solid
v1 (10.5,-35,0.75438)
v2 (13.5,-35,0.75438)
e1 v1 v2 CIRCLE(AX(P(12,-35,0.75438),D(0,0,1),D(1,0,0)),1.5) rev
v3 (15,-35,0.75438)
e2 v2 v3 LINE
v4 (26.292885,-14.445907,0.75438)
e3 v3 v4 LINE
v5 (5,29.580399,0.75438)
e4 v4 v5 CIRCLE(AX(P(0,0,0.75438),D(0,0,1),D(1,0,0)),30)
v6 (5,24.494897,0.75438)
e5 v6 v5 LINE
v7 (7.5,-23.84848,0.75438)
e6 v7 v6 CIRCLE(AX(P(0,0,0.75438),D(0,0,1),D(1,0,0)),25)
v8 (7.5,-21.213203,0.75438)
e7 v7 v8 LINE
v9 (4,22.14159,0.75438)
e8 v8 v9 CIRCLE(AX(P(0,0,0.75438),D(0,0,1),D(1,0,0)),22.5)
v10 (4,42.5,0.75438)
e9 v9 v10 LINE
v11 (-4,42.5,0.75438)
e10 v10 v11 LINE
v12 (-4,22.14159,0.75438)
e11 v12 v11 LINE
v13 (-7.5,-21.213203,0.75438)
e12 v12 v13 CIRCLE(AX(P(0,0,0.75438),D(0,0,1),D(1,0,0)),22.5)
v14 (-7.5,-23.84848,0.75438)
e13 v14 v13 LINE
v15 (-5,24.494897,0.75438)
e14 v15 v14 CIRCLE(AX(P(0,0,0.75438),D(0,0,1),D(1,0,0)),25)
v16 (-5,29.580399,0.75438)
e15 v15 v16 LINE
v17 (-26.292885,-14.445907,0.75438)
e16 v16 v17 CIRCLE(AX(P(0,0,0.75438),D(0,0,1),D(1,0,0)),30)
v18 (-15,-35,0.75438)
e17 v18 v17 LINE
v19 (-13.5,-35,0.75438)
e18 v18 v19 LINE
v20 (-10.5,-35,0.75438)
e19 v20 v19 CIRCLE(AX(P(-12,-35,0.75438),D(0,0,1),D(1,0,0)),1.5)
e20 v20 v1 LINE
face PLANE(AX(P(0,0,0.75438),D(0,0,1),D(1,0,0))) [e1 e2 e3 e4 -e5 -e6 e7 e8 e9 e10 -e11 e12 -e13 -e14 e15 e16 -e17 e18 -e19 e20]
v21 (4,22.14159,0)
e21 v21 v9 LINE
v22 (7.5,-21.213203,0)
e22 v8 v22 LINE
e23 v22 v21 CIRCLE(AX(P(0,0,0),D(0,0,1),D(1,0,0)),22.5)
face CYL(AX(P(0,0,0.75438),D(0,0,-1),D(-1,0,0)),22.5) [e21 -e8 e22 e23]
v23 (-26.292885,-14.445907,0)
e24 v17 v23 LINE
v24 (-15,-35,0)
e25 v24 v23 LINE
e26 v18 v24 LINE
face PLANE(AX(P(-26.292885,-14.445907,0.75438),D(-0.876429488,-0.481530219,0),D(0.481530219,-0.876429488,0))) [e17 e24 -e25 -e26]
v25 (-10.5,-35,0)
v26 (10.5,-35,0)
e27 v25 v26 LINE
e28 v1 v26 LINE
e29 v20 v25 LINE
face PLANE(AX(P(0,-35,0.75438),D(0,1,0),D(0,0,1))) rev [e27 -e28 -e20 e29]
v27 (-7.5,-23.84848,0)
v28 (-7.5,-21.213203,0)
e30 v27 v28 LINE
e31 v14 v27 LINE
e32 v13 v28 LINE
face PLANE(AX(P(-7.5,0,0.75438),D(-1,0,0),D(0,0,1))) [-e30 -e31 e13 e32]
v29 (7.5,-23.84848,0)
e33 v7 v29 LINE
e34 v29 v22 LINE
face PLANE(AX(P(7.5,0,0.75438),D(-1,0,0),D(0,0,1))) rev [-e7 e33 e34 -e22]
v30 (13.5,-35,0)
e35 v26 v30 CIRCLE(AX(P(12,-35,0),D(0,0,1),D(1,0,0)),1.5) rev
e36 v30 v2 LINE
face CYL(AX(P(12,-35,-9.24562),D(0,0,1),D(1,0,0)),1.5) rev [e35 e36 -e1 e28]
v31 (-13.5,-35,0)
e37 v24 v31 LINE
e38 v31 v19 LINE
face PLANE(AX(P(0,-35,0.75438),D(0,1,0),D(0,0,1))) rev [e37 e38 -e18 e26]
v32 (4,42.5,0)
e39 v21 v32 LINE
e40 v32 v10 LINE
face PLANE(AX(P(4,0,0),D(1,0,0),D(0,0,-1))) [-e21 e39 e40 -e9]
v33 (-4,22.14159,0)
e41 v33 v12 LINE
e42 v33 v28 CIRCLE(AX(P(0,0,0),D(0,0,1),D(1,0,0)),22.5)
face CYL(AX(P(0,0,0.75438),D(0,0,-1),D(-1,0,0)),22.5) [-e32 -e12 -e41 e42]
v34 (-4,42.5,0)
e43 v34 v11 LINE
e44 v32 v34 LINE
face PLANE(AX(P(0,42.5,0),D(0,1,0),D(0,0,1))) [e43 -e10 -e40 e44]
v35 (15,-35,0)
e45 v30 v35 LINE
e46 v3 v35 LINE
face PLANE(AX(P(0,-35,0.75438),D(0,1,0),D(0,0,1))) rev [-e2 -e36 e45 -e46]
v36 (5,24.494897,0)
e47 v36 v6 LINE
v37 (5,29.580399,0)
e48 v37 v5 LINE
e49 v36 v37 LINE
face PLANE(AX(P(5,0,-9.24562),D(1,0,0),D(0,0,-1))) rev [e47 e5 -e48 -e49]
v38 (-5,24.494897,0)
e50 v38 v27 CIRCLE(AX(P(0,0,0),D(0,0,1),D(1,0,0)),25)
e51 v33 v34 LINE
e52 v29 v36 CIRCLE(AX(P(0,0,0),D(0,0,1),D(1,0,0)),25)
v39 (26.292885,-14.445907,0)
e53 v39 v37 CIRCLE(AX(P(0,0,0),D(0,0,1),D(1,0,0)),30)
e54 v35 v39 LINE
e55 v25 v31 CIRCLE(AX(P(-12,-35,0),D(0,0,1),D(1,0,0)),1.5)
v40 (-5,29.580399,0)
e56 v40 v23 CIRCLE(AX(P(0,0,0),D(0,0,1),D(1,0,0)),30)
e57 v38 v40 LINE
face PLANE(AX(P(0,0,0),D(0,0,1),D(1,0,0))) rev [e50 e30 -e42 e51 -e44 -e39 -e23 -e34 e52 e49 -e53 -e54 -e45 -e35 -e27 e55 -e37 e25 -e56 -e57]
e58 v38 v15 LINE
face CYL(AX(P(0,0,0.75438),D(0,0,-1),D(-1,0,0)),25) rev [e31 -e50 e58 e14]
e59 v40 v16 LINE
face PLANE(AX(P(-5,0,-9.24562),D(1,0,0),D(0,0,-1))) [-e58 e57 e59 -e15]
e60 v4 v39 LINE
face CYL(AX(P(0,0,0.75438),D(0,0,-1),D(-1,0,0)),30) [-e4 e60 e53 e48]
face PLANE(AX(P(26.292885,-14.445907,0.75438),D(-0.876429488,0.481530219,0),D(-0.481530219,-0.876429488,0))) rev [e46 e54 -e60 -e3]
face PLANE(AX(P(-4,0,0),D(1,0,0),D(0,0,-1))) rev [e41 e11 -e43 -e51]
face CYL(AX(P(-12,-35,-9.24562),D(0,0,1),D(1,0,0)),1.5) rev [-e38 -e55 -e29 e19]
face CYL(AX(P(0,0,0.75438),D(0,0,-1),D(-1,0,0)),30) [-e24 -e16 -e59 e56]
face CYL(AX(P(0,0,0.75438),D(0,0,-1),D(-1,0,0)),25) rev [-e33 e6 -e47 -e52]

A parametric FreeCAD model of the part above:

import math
import FreeCAD as App
import Part
import Sketcher
Q = App.Units.Quantity

doc = App.newDocument("Part")
body = doc.addObject("PartDesign::Body", "Body")

sketch1 = body.newObject("Sketcher::SketchObject", "Sketch")
sketch1.AttachmentSupport = (doc.getObject("XY_Plane"), [""])
sketch1.MapMode = "FlatFace"
sketch1.addGeometry([
    Part.LineSegment(App.Vector(-15, -35, 0), App.Vector(15, -35, 0)),
    Part.LineSegment(App.Vector(15, -35, 0), App.Vector(26.292885, -14.445907, 0)),
    Part.ArcOfCircle(Part.Circle(App.Vector(0, 0, 0), App.Vector(0, 0, 1), 30), math.radians(-28.785391), math.radians(208.785391)),
    Part.LineSegment(App.Vector(-26.292885, -14.445907, 0), App.Vector(-15, -35, 0)),
    Part.LineSegment(App.Vector(-7.5, -21.213203, 0), App.Vector(-7.5, -23.84848, 0)),
    Part.ArcOfCircle(Part.Circle(App.Vector(0, 0, 0), App.Vector(0, 0, 1), 25), math.radians(-72.542397), math.radians(252.542397)),
    Part.LineSegment(App.Vector(7.5, -23.84848, 0), App.Vector(7.5, -21.213203, 0)),
    Part.ArcOfCircle(Part.Circle(App.Vector(0, 0, 0), App.Vector(0, 0, 1), 22.5), math.radians(-70.528779), math.radians(250.528779)),
], False)
sketch1.addConstraint([
    Sketcher.Constraint("Coincident", 0, 2, 1, 1),
    Sketcher.Constraint("Tangent", 1, 2, 2, 1),
    Sketcher.Constraint("Tangent", 2, 2, 3, 1),
    Sketcher.Constraint("Coincident", 3, 2, 0, 1),
    Sketcher.Constraint("Coincident", 4, 2, 5, 2),
    Sketcher.Constraint("Coincident", 5, 1, 6, 1),
    Sketcher.Constraint("Coincident", 6, 2, 7, 1),
    Sketcher.Constraint("Coincident", 7, 2, 4, 1),
    Sketcher.Constraint("Horizontal", 0),
    Sketcher.Constraint("Vertical", 4),
    Sketcher.Constraint("Vertical", 6),
    Sketcher.Constraint("Coincident", 2, 3, -1, 1),
    Sketcher.Constraint("Coincident", 5, 3, -1, 1),
    Sketcher.Constraint("Coincident", 7, 3, -1, 1),
    Sketcher.Constraint("Horizontal", 1, 2, 2, 2),
    Sketcher.Constraint("Horizontal", 4, 2, 5, 1),
    Sketcher.Constraint("Radius", 2, Q("30 mm")),
    Sketcher.Constraint("Radius", 5, Q("25 mm")),
    Sketcher.Constraint("Radius", 7, Q("22.5 mm")),
    Sketcher.Constraint("DistanceX", 0, 1, 0, 2, Q("30 mm")),
    Sketcher.Constraint("DistanceY", 0, 2, -1, 1, Q("35 mm")),
    Sketcher.Constraint("DistanceX", 4, 2, 5, 1, Q("15 mm")),
])
pad1 = body.newObject("PartDesign::Pad", "Pad")
pad1.Profile = sketch1
pad1.Length = 0.75438

sketch2 = body.newObject("Sketcher::SketchObject", "Sketch001")
sketch2.AttachmentSupport = (doc.getObject("XY_Plane"), [""])
sketch2.MapMode = "FlatFace"
sketch2.AttachmentOffset = App.Placement(App.Vector(0, 0, -9.24562), App.Rotation())
sketch2.addGeometry([
    Part.LineSegment(App.Vector(5, 30.901393, 0), App.Vector(-5, 30.901393, 0)),
    Part.LineSegment(App.Vector(-5, 30.901393, 0), App.Vector(-5, 24.098607, 0)),
    Part.LineSegment(App.Vector(-5, 24.098607, 0), App.Vector(5, 24.098607, 0)),
    Part.LineSegment(App.Vector(5, 24.098607, 0), App.Vector(5, 30.901393, 0)),
], False)
sketch2.addConstraint([
    Sketcher.Constraint("Coincident", 0, 2, 1, 1),
    Sketcher.Constraint("Coincident", 1, 2, 2, 1),
    Sketcher.Constraint("Coincident", 2, 2, 3, 1),
    Sketcher.Constraint("Coincident", 3, 2, 0, 1),
    Sketcher.Constraint("Horizontal", 0),
    Sketcher.Constraint("Vertical", 1),
    Sketcher.Constraint("Horizontal", 2),
    Sketcher.Constraint("Vertical", 3),
    Sketcher.Constraint("DistanceX", 0, 2, 0, 1, Q("10 mm")),
    Sketcher.Constraint("DistanceX", 0, 2, -1, 1, Q("5 mm")),
    Sketcher.Constraint("DistanceY", 1, 2, 1, 1, Q("6.802785 mm")),
    Sketcher.Constraint("DistanceY", -1, 1, 0, 2, Q("30.901393 mm")),
])
pocket1 = body.newObject("PartDesign::Pocket", "Pocket")
pocket1.Profile = sketch2
pocket1.Length = 10
pocket1.Reversed = True

sketch3 = body.newObject("Sketcher::SketchObject", "Sketch002")
sketch3.AttachmentSupport = (doc.getObject("XY_Plane"), [""])
sketch3.MapMode = "FlatFace"
sketch3.addGeometry([
    Part.ArcOfCircle(Part.Circle(App.Vector(0, 0, 0), App.Vector(0, 0, 1), 22.5), math.radians(90), math.radians(100.240348)),
    Part.ArcOfCircle(Part.Circle(App.Vector(0, 0, 0), App.Vector(0, 0, 1), 22.5), math.radians(79.759652), math.radians(90)),
    Part.LineSegment(App.Vector(4, 22.14159, 0), App.Vector(4, 42.5, 0)),
    Part.LineSegment(App.Vector(4, 42.5, 0), App.Vector(-4, 42.5, 0)),
    Part.LineSegment(App.Vector(-4, 42.5, 0), App.Vector(-4, 22.14159, 0)),
], False)
sketch3.addConstraint([
    Sketcher.Constraint("Tangent", 0, 1, 1, 2),
    Sketcher.Constraint("Coincident", 1, 1, 2, 1),
    Sketcher.Constraint("Coincident", 2, 2, 3, 1),
    Sketcher.Constraint("Coincident", 3, 2, 4, 1),
    Sketcher.Constraint("Coincident", 4, 2, 0, 2),
    Sketcher.Constraint("Vertical", 2),
    Sketcher.Constraint("Horizontal", 3),
    Sketcher.Constraint("Vertical", 4),
    Sketcher.Constraint("Coincident", 0, 3, -1, 1),
    Sketcher.Constraint("Equal", 0, 1),
    Sketcher.Constraint("PointOnObject", 0, 1, -2),
    Sketcher.Constraint("Horizontal", 1, 1, 4, 2),
    Sketcher.Constraint("Radius", 0, Q("22.5 mm")),
    Sketcher.Constraint("DistanceX", 3, 2, 3, 1, Q("8 mm")),
    Sketcher.Constraint("DistanceY", 0, 1, 2, 2, Q("20 mm")),
])
pad2 = body.newObject("PartDesign::Pad", "Pad001")
pad2.Profile = sketch3
pad2.Length = 0.75438

sketch4 = body.newObject("Sketcher::SketchObject", "Sketch003")
sketch4.AttachmentSupport = (doc.getObject("XY_Plane"), [""])
sketch4.MapMode = "FlatFace"
sketch4.AttachmentOffset = App.Placement(App.Vector(0, 0, 0.75438), App.Rotation())
sketch4.addGeometry([
    Part.Circle(App.Vector(-12, -35, 0), App.Vector(0, 0, 1), 1.5),
    Part.Circle(App.Vector(12, -35, 0), App.Vector(0, 0, 1), 1.5),
], False)
sketch4.addConstraint([
    Sketcher.Constraint("Equal", 0, 1),
    Sketcher.Constraint("Symmetric", 0, 3, 1, 3, -2),
    Sketcher.Constraint("Diameter", 0, Q("3 mm")),
    Sketcher.Constraint("DistanceX", 0, 3, -1, 1, Q("12 mm")),
    Sketcher.Constraint("DistanceY", 0, 3, -1, 1, Q("35 mm")),
])
pocket2 = body.newObject("PartDesign::Pocket", "Pocket001")
pocket2.Profile = sketch4
pocket2.Length = 10

doc.recompute()
